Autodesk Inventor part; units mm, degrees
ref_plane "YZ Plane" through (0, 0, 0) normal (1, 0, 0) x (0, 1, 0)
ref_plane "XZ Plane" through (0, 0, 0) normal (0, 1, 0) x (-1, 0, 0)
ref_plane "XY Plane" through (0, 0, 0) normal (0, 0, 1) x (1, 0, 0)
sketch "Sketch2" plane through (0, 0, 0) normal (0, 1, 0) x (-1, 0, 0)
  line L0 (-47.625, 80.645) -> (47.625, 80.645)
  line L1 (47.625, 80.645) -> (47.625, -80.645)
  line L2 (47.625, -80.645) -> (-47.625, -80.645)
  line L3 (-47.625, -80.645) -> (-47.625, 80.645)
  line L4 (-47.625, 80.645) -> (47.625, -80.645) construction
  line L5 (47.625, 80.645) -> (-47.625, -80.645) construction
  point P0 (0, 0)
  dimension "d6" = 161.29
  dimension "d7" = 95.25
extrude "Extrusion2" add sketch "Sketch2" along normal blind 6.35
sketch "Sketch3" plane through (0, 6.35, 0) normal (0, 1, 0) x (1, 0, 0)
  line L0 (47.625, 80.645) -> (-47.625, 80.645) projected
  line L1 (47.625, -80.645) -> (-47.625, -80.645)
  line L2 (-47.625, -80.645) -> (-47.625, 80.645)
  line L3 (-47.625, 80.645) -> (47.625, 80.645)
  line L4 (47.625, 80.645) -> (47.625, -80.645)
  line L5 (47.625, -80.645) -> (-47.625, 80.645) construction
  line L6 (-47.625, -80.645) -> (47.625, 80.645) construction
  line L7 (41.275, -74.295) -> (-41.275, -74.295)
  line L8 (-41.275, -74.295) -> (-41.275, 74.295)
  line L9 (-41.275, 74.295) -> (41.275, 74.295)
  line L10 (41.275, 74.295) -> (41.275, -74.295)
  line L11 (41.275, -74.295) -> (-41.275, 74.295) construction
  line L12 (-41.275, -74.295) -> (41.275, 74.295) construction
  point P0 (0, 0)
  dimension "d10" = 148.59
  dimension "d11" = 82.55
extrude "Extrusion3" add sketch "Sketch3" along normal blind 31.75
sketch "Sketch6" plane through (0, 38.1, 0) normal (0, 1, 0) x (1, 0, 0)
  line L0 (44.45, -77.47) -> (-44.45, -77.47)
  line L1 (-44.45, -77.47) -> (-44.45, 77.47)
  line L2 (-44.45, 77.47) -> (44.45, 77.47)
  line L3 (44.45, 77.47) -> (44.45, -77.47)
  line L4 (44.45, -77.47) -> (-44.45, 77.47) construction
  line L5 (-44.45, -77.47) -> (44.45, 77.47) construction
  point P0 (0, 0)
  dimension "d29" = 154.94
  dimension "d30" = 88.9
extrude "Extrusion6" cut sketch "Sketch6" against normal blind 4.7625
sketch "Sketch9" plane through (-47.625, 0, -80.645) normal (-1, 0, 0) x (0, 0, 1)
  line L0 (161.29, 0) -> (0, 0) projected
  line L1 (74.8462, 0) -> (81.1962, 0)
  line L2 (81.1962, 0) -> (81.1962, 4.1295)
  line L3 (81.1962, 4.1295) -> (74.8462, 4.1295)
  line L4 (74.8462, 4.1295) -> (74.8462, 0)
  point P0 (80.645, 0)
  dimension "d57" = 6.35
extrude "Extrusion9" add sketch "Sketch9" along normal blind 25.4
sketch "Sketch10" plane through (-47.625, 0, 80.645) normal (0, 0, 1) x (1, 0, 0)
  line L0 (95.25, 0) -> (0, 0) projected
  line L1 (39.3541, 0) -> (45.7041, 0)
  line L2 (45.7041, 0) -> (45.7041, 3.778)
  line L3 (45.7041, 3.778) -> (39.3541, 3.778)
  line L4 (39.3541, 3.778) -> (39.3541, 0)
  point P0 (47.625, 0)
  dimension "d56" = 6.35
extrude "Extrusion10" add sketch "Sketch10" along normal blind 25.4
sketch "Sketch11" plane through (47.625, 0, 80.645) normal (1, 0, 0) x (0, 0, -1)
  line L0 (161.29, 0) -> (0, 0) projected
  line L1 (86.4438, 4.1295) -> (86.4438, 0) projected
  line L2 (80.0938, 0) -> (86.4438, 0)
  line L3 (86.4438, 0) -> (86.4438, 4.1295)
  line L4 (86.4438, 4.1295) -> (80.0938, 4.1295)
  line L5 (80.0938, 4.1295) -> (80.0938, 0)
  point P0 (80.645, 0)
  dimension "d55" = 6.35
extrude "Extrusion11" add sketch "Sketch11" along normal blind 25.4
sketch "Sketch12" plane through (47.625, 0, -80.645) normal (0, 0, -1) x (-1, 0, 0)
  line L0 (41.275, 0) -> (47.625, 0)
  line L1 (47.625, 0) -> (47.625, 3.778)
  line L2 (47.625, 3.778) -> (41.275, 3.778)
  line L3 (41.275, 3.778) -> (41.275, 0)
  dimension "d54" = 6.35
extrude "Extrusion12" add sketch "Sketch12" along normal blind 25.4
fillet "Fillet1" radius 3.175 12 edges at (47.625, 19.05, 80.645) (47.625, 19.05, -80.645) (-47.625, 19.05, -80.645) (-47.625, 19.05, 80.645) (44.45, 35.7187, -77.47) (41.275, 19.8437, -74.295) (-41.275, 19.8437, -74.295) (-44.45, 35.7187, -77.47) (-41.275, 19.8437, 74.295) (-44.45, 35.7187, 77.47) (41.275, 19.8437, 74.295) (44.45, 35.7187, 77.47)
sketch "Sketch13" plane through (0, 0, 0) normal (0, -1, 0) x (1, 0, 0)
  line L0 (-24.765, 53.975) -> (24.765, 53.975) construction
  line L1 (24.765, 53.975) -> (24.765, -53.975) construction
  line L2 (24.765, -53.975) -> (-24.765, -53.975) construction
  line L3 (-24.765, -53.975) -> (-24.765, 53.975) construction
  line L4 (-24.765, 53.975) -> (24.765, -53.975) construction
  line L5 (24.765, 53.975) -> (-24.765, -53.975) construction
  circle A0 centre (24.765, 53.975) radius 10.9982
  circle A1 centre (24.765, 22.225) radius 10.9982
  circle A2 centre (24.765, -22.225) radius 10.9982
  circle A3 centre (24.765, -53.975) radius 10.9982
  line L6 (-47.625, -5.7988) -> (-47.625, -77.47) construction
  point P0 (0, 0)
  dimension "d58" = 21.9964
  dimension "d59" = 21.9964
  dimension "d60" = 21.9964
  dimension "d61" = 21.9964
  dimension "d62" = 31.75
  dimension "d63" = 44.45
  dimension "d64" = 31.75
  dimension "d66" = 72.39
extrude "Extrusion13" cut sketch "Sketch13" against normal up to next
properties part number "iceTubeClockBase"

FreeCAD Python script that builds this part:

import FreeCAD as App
import Part
import Sketcher
Q = App.Units.Quantity


def edges_at(feature, points):
    """Names of the edges that pass closest to the given points."""
    edges = feature.Shape.Edges
    near = lambda p: min(range(len(edges)), key=lambda i: edges[i].distToShape(Part.Vertex(*p))[0])
    return sorted({f"Edge{near(p) + 1}" for p in points})

doc = App.newDocument("Part")
body = doc.addObject("PartDesign::Body", "Body")

# Sketch on XZ plane
sketch1 = body.newObject("Sketcher::SketchObject", "Sketch")
sketch1.AttachmentSupport = (doc.getObject("XZ_Plane"), [""])
sketch1.MapMode = "FlatFace"
sketch1.addGeometry([
    Part.LineSegment(App.Vector(-48, 81, 0), App.Vector(48, 81, 0)),
    Part.LineSegment(App.Vector(48, 81, 0), App.Vector(48, -81, 0)),
    Part.LineSegment(App.Vector(48, -81, 0), App.Vector(-48, -81, 0)),
    Part.LineSegment(App.Vector(-48, -81, 0), App.Vector(-48, 81, 0)),
], False)
sketch1.addConstraint([
    Sketcher.Constraint("Coincident", 0, 2, 1, 1),
    Sketcher.Constraint("Coincident", 1, 2, 2, 1),
    Sketcher.Constraint("Coincident", 2, 2, 3, 1),
    Sketcher.Constraint("Coincident", 3, 2, 0, 1),
    Sketcher.Constraint("Horizontal", 0),
    Sketcher.Constraint("Vertical", 1),
    Sketcher.Constraint("Horizontal", 2),
    Sketcher.Constraint("Vertical", 3),
    Sketcher.Constraint("Symmetric", 0, 2, 2, 2, -1, 1),
    Sketcher.Constraint("DistanceX", 0, 1, 0, 2, Q("3.75 in")),
    Sketcher.Constraint("DistanceY", 1, 2, 1, 1, Q("6.35 in")),
])
pad1 = body.newObject("PartDesign::Pad", "Pad")
pad1.Profile = sketch1
pad1.Length = Q("0.25 in")
pad1.Reversed = True

# Sketch on XZ plane
sketch2 = body.newObject("Sketcher::SketchObject", "Sketch001")
sketch2.AttachmentSupport = (doc.getObject("XZ_Plane"), [""])
sketch2.MapMode = "FlatFace"
sketch2.AttachmentOffset = App.Placement(App.Vector(0, 0, -0.25 * 25.4), App.Rotation())
sketch2.addGeometry([
    Part.LineSegment(App.Vector(48, 81, 0), App.Vector(48, -81, 0)),  # 0
    Part.LineSegment(App.Vector(48, -81, 0), App.Vector(-48, -81, 0)),  # 1
    Part.LineSegment(App.Vector(-48, -81, 0), App.Vector(-48, 81, 0)),  # 2
    Part.LineSegment(App.Vector(-48, 81, 0), App.Vector(48, 81, 0)),  # 3
    Part.LineSegment(App.Vector(41, -74, 0), App.Vector(41, 74, 0)),  # 4
    Part.LineSegment(App.Vector(41, 74, 0), App.Vector(-41, 74, 0)),  # 5
    Part.LineSegment(App.Vector(-41, 74, 0), App.Vector(-41, -74, 0)),  # 6
    Part.LineSegment(App.Vector(-41, -74, 0), App.Vector(41, -74, 0)),  # 7
], False)
sketch2.addConstraint([
    Sketcher.Constraint("Coincident", 0, 2, 1, 1),
    Sketcher.Constraint("Coincident", 1, 2, 2, 1),
    Sketcher.Constraint("Coincident", 2, 2, 3, 1),
    Sketcher.Constraint("Coincident", 3, 2, 0, 1),
    Sketcher.Constraint("Coincident", 4, 2, 5, 1),
    Sketcher.Constraint("Coincident", 5, 2, 6, 1),
    Sketcher.Constraint("Coincident", 6, 2, 7, 1),
    Sketcher.Constraint("Coincident", 7, 2, 4, 1),
    Sketcher.Constraint("Vertical", 0),
    Sketcher.Constraint("Horizontal", 1),
    Sketcher.Constraint("Vertical", 2),
    Sketcher.Constraint("Horizontal", 3),
    Sketcher.Constraint("Vertical", 4),
    Sketcher.Constraint("Horizontal", 5),
    Sketcher.Constraint("Vertical", 6),
    Sketcher.Constraint("Horizontal", 7),
    Sketcher.Constraint("Symmetric", 0, 2, 2, 2, -1, 1),
    Sketcher.Constraint("Symmetric", 4, 2, 6, 2, -1, 1),
    Sketcher.Constraint("DistanceX", 5, 2, 5, 1, Q("3.25 in")),
    Sketcher.Constraint("DistanceY", 4, 1, 4, 2, Q("5.85 in")),
    Sketcher.Constraint("DistanceX", 1, 2, 1, 1, Q("3.75 in")),
    Sketcher.Constraint("DistanceY", 0, 2, 0, 1, Q("6.35 in")),
])
pad2 = body.newObject("PartDesign::Pad", "Pad001")
pad2.Profile = sketch2
pad2.Length = Q("1.25 in")
pad2.Reversed = True

# Sketch on XZ plane
sketch3 = body.newObject("Sketcher::SketchObject", "Sketch002")
sketch3.AttachmentSupport = (doc.getObject("XZ_Plane"), [""])
sketch3.MapMode = "FlatFace"
sketch3.AttachmentOffset = App.Placement(App.Vector(0, 0, -1.5 * 25.4), App.Rotation())
sketch3.addGeometry([
    Part.LineSegment(App.Vector(-44, 77, 0), App.Vector(44, 77, 0)),
    Part.LineSegment(App.Vector(44, 77, 0), App.Vector(44, -77, 0)),
    Part.LineSegment(App.Vector(44, -77, 0), App.Vector(-44, -77, 0)),
    Part.LineSegment(App.Vector(-44, -77, 0), App.Vector(-44, 77, 0)),
], False)
sketch3.addConstraint([
    Sketcher.Constraint("Coincident", 0, 2, 1, 1),
    Sketcher.Constraint("Coincident", 1, 2, 2, 1),
    Sketcher.Constraint("Coincident", 2, 2, 3, 1),
    Sketcher.Constraint("Coincident", 3, 2, 0, 1),
    Sketcher.Constraint("Horizontal", 0),
    Sketcher.Constraint("Vertical", 1),
    Sketcher.Constraint("Horizontal", 2),
    Sketcher.Constraint("Vertical", 3),
    Sketcher.Constraint("Symmetric", 0, 2, 2, 2, -1, 1),
    Sketcher.Constraint("DistanceX", 0, 1, 0, 2, Q("3.5 in")),
    Sketcher.Constraint("DistanceY", 1, 2, 1, 1, Q("6.1 in")),
])
pocket1 = body.newObject("PartDesign::Pocket", "Pocket")
pocket1.Profile = sketch3
pocket1.Length = Q("0.1875 in")
pocket1.Reversed = True

# Sketch on YZ plane
sketch4 = body.newObject("Sketcher::SketchObject", "Sketch003")
sketch4.AttachmentSupport = (doc.getObject("YZ_Plane"), [""])
sketch4.MapMode = "FlatFace"
sketch4.AttachmentOffset = App.Placement(App.Vector(0, 0, -1.875 * 25.4), App.Rotation())
sketch4.addGeometry([
    Part.LineSegment(App.Vector(0, -5.8, 0), App.Vector(0, 0.6, 0)),
    Part.LineSegment(App.Vector(0, 0.6, 0), App.Vector(4.1, 0.6, 0)),
    Part.LineSegment(App.Vector(4.1, 0.6, 0), App.Vector(4.1, -5.8, 0)),
    Part.LineSegment(App.Vector(4.1, -5.8, 0), App.Vector(0, -5.8, 0)),
], False)
sketch4.addConstraint([
    Sketcher.Constraint("Coincident", 0, 2, 1, 1),
    Sketcher.Constraint("Coincident", 1, 2, 2, 1),
    Sketcher.Constraint("Coincident", 2, 2, 3, 1),
    Sketcher.Constraint("Coincident", 3, 2, 0, 1),
    Sketcher.Constraint("Vertical", 0),
    Sketcher.Constraint("Horizontal", 1),
    Sketcher.Constraint("Vertical", 2),
    Sketcher.Constraint("Horizontal", 3),
    Sketcher.Constraint("PointOnObject", 0, 2, -2),
    Sketcher.Constraint("DistanceY", 0, 1, 0, 2, Q("0.25 in")),
    Sketcher.Constraint("DistanceX", 1, 1, 1, 2, 4.1295),
    Sketcher.Constraint("DistanceY", -1, 1, 0, 2, Q("0.0217 in")),
])
pad3 = body.newObject("PartDesign::Pad", "Pad002")
pad3.Profile = sketch4
pad3.Length = Q("1 in")
pad3.Reversed = True

# Sketch on XY plane
sketch5 = body.newObject("Sketcher::SketchObject", "Sketch004")
sketch5.AttachmentSupport = (doc.getObject("XY_Plane"), [""])
sketch5.MapMode = "FlatFace"
sketch5.AttachmentOffset = App.Placement(App.Vector(0, 0, 3.175 * 25.4), App.Rotation())
sketch5.addGeometry([
    Part.LineSegment(App.Vector(-8.3, 0, 0), App.Vector(-1.9, 0, 0)),
    Part.LineSegment(App.Vector(-1.9, 0, 0), App.Vector(-1.9, 3.8, 0)),
    Part.LineSegment(App.Vector(-1.9, 3.8, 0), App.Vector(-8.3, 3.8, 0)),
    Part.LineSegment(App.Vector(-8.3, 3.8, 0), App.Vector(-8.3, 0, 0)),
], False)
sketch5.addConstraint([
    Sketcher.Constraint("Coincident", 0, 2, 1, 1),
    Sketcher.Constraint("Coincident", 1, 2, 2, 1),
    Sketcher.Constraint("Coincident", 2, 2, 3, 1),
    Sketcher.Constraint("Coincident", 3, 2, 0, 1),
    Sketcher.Constraint("Horizontal", 0),
    Sketcher.Constraint("Vertical", 1),
    Sketcher.Constraint("Horizontal", 2),
    Sketcher.Constraint("Vertical", 3),
    Sketcher.Constraint("PointOnObject", 0, 2, -1),
    Sketcher.Constraint("DistanceX", 0, 1, 0, 2, Q("0.25 in")),
    Sketcher.Constraint("DistanceY", 1, 1, 1, 2, 3.778),
    Sketcher.Constraint("DistanceX", 0, 2, -1, 1, 1.921),
])
pad4 = body.newObject("PartDesign::Pad", "Pad003")
pad4.Profile = sketch5
pad4.Length = Q("1 in")

# Sketch on YZ plane
sketch6 = body.newObject("Sketcher::SketchObject", "Sketch005")
sketch6.AttachmentSupport = (doc.getObject("YZ_Plane"), [""])
sketch6.MapMode = "FlatFace"
sketch6.AttachmentOffset = App.Placement(App.Vector(0, 0, 1.875 * 25.4), App.Rotation())
sketch6.addGeometry([
    Part.LineSegment(App.Vector(0, 0.6, 0), App.Vector(0, -5.8, 0)),
    Part.LineSegment(App.Vector(0, -5.8, 0), App.Vector(4.1, -5.8, 0)),
    Part.LineSegment(App.Vector(4.1, -5.8, 0), App.Vector(4.1, 0.6, 0)),
    Part.LineSegment(App.Vector(4.1, 0.6, 0), App.Vector(0, 0.6, 0)),
], False)
sketch6.addConstraint([
    Sketcher.Constraint("Coincident", 0, 2, 1, 1),
    Sketcher.Constraint("Coincident", 1, 2, 2, 1),
    Sketcher.Constraint("Coincident", 2, 2, 3, 1),
    Sketcher.Constraint("Coincident", 3, 2, 0, 1),
    Sketcher.Constraint("Vertical", 0),
    Sketcher.Constraint("Horizontal", 1),
    Sketcher.Constraint("Vertical", 2),
    Sketcher.Constraint("Horizontal", 3),
    Sketcher.Constraint("PointOnObject", 0, 2, -2),
    Sketcher.Constraint("DistanceY", 0, 2, 0, 1, Q("0.25 in")),
    Sketcher.Constraint("DistanceX", 1, 1, 1, 2, 4.1295),
    Sketcher.Constraint("DistanceY", 0, 2, -1, 1, Q("0.2283 in")),
])
pad5 = body.newObject("PartDesign::Pad", "Pad004")
pad5.Profile = sketch6
pad5.Length = Q("1 in")

# Sketch on XY plane
sketch7 = body.newObject("Sketcher::SketchObject", "Sketch006")
sketch7.AttachmentSupport = (doc.getObject("XY_Plane"), [""])
sketch7.MapMode = "FlatFace"
sketch7.AttachmentOffset = App.Placement(App.Vector(0, 0, -3.175 * 25.4), App.Rotation())
sketch7.addGeometry([
    Part.LineSegment(App.Vector(6.3, 3.8, 0), App.Vector(6.3, 0, 0)),
    Part.LineSegment(App.Vector(6.3, 0, 0), App.Vector(0, 0, 0)),
    Part.LineSegment(App.Vector(0, 0, 0), App.Vector(0, 3.8, 0)),
    Part.LineSegment(App.Vector(0, 3.8, 0), App.Vector(6.3, 3.8, 0)),
], False)
sketch7.addConstraint([
    Sketcher.Constraint("Coincident", 0, 2, 1, 1),
    Sketcher.Constraint("Coincident", 1, 2, 2, 1),
    Sketcher.Constraint("Coincident", 2, 2, 3, 1),
    Sketcher.Constraint("Coincident", 3, 2, 0, 1),
    Sketcher.Constraint("Vertical", 0),
    Sketcher.Constraint("Horizontal", 1),
    Sketcher.Constraint("Vertical", 2),
    Sketcher.Constraint("Horizontal", 3),
    Sketcher.Constraint("Coincident", 1, 2, -1, 1),
    Sketcher.Constraint("DistanceX", 1, 2, 1, 1, Q("0.25 in")),
    Sketcher.Constraint("DistanceY", 0, 2, 0, 1, 3.778),
])
pad6 = body.newObject("PartDesign::Pad", "Pad005")
pad6.Profile = sketch7
pad6.Length = Q("1 in")
pad6.Reversed = True
doc.recompute()

fillet = body.newObject("PartDesign::Fillet", "Fillet")
fillet.Base = (pad6, edges_at(pad6, [
    (47.625, 19.05, 80.645),
    (47.625, 19.05, -80.645),
    (-47.625, 19.05, -80.645),
    (-47.625, 19.05, 80.645),
    (44.45, 35.719, -77.47),
    (41.275, 19.844, -74.295),
    (-41.275, 19.844, -74.295),
    (-44.45, 35.719, -77.47),
    (-41.275, 19.844, 74.295),
    (-44.45, 35.719, 77.47),
    (41.275, 19.844, 74.295),
    (44.45, 35.719, 77.47),
]))
fillet.Radius = Q("0.125 in")

# Sketch on XZ plane
sketch8 = body.newObject("Sketcher::SketchObject", "Sketch007")
sketch8.AttachmentSupport = (doc.getObject("XZ_Plane"), [""])
sketch8.MapMode = "FlatFace"
sketch8.addGeometry([
    Part.Circle(App.Vector(25, 54, 0), App.Vector(0, 0, 1), 11),
    Part.Circle(App.Vector(25, 22, 0), App.Vector(0, 0, 1), 11),
    Part.Circle(App.Vector(25, -22, 0), App.Vector(0, 0, 1), 11),
    Part.Circle(App.Vector(25, -54, 0), App.Vector(0, 0, 1), 11),
], False)
sketch8.addConstraint([
    Sketcher.Constraint("Equal", 0, 1),
    Sketcher.Constraint("Equal", 1, 2),
    Sketcher.Constraint("Equal", 2, 3),
    Sketcher.Constraint("Symmetric", 1, 3, 2, 3, -1),
    Sketcher.Constraint("Symmetric", 0, 3, 3, 3, -1),
    Sketcher.Constraint("Vertical", 0, 3, 1, 3),
    Sketcher.Constraint("Diameter", 0, Q("0.866 in")),
    Sketcher.Constraint("DistanceY", 1, 3, 0, 3, Q("1.25 in")),
    Sketcher.Constraint("DistanceY", 2, 3, 1, 3, Q("1.75 in")),
    Sketcher.Constraint("DistanceX", -1, 1, 0, 3, Q("0.975 in")),
])
pocket2 = body.newObject("PartDesign::Pocket", "Pocket001")
pocket2.Profile = sketch8
pocket2.Type = "UpToFirst"

doc.recompute()
